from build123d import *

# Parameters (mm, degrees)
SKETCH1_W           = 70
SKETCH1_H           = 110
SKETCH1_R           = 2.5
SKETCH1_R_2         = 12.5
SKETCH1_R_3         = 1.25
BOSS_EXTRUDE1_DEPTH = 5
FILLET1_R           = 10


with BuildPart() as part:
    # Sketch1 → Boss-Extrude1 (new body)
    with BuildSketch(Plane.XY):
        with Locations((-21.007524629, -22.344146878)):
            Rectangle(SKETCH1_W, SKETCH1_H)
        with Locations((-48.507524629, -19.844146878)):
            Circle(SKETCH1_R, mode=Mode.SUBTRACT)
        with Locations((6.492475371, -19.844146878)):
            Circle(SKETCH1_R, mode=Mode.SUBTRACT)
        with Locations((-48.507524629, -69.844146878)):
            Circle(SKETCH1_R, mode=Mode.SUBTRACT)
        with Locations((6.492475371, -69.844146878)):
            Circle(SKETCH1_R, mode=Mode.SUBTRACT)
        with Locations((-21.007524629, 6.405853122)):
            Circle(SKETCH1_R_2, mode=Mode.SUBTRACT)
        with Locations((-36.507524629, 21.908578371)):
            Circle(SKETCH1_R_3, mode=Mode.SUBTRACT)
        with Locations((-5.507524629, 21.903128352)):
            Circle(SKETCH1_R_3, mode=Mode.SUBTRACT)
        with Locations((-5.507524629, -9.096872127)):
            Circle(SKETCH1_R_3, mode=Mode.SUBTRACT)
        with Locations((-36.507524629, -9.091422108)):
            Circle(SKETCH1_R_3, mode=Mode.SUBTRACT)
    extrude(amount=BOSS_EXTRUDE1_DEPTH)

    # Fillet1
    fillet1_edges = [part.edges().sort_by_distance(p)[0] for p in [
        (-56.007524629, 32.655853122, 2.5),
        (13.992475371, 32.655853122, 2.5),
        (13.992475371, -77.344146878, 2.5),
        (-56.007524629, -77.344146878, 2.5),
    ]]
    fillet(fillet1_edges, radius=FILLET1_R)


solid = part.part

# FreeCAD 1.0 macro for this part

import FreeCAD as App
import Part
import Sketcher
from FreeCAD import Vector


def edges_at(feature, points):
    """Names of the edges that pass closest to the given points."""
    edges = feature.Shape.Edges
    near = lambda p: min(range(len(edges)), key=lambda i: edges[i].distToShape(Part.Vertex(*p))[0])
    return sorted({f"Edge{near(p) + 1}" for p in points})

doc = App.newDocument("Part")
body = doc.addObject("PartDesign::Body", "Body")

# Sketch on XY plane
sketch1 = body.newObject("Sketcher::SketchObject", "Sketch")
sketch1.AttachmentSupport = (doc.getObject("XY_Plane"), [""])
sketch1.MapMode = "FlatFace"
sketch1.addGeometry(Part.LineSegment(Vector(-56.007525, 32.655853, 0), Vector(-56.007525, -77.344147, 0)), False)
sketch1.addGeometry(Part.LineSegment(Vector(-56.007525, -77.344147, 0), Vector(13.992475, -77.344147, 0)), False)
sketch1.addGeometry(Part.LineSegment(Vector(13.992475, -77.344147, 0), Vector(13.992475, 32.655853, 0)), False)
sketch1.addGeometry(Part.LineSegment(Vector(13.992475, 32.655853, 0), Vector(-56.007525, 32.655853, 0)), False)
sketch1.addGeometry(Part.Circle(Vector(-48.507525, -69.844147, 0), Vector(0, 0, 1), 2.5), False)
sketch1.addGeometry(Part.Circle(Vector(6.492475, -69.844147, 0), Vector(0, 0, 1), 2.5), False)
sketch1.addGeometry(Part.Circle(Vector(-48.507525, -19.844147, 0), Vector(0, 0, 1), 2.5), False)
sketch1.addGeometry(Part.Circle(Vector(-36.507525, -9.091422, 0), Vector(0, 0, 1), 1.25), False)
sketch1.addGeometry(Part.Circle(Vector(-36.507525, 21.908578, 0), Vector(0, 0, 1), 1.25), False)
sketch1.addGeometry(Part.Circle(Vector(6.492475, -19.844147, 0), Vector(0, 0, 1), 2.5), False)
sketch1.addGeometry(Part.Circle(Vector(-5.507525, -9.096872, 0), Vector(0, 0, 1), 1.25), False)
sketch1.addGeometry(Part.Circle(Vector(-21.007525, 6.405853, 0), Vector(0, 0, 1), 12.5), False)
sketch1.addGeometry(Part.Circle(Vector(-5.507525, 21.903128, 0), Vector(0, 0, 1), 1.25), False)
sketch1.addConstraint(Sketcher.Constraint("Coincident", 0, 2, 1, 1))
sketch1.addConstraint(Sketcher.Constraint("Coincident", 1, 2, 2, 1))
sketch1.addConstraint(Sketcher.Constraint("Coincident", 2, 2, 3, 1))
sketch1.addConstraint(Sketcher.Constraint("Coincident", 3, 2, 0, 1))
sketch1.addConstraint(Sketcher.Constraint("Vertical", 0))
sketch1.addConstraint(Sketcher.Constraint("Horizontal", 1))
sketch1.addConstraint(Sketcher.Constraint("Vertical", 2))
sketch1.addConstraint(Sketcher.Constraint("Horizontal", 3))
sketch1.addConstraint(Sketcher.Constraint("Equal", 4, 5))
sketch1.addConstraint(Sketcher.Constraint("Equal", 5, 6))
sketch1.addConstraint(Sketcher.Constraint("Equal", 7, 8))
sketch1.addConstraint(Sketcher.Constraint("Equal", 6, 9))
sketch1.addConstraint(Sketcher.Constraint("Equal", 8, 10))
sketch1.addConstraint(Sketcher.Constraint("Equal", 10, 12))
sketch1.addConstraint(Sketcher.Constraint("Horizontal", 4, 3, 5, 3))
sketch1.addConstraint(Sketcher.Constraint("Horizontal", 6, 3, 9, 3))
sketch1.addConstraint(Sketcher.Constraint("Vertical", 4, 3, 6, 3))
sketch1.addConstraint(Sketcher.Constraint("Vertical", 7, 3, 8, 3))
sketch1.addConstraint(Sketcher.Constraint("Vertical", 5, 3, 9, 3))
sketch1.addConstraint(Sketcher.Constraint("Vertical", 10, 3, 12, 3))
sketch1.addConstraint(Sketcher.Constraint("Diameter", 4, 5.0))
sketch1.addConstraint(Sketcher.Constraint("Diameter", 11, 25.0))
sketch1.addConstraint(Sketcher.Constraint("Diameter", 7, 2.5))
sketch1.addConstraint(Sketcher.Constraint("DistanceX", 1, 1, 1, 2, 70.0))
sketch1.addConstraint(Sketcher.Constraint("DistanceY", 0, 2, 0, 1, 110.0))
sketch1.addConstraint(Sketcher.Constraint("DistanceX", 4, 3, 5, 3, 55.0))
sketch1.addConstraint(Sketcher.Constraint("DistanceY", 4, 3, 6, 3, 50.0))
sketch1.addConstraint(Sketcher.Constraint("DistanceX", 6, 3, 7, 3, 12.0))
sketch1.addConstraint(Sketcher.Constraint("DistanceY", 7, 3, 8, 3, 31.0))
sketch1.addConstraint(Sketcher.Constraint("DistanceX", 10, 3, 9, 3, 12.0))
sketch1.addConstraint(Sketcher.Constraint("DistanceY", 10, 3, 12, 3, 31.0))
sketch1.addConstraint(Sketcher.Constraint("DistanceX", 11, 3, 2, 2, 35.0))
sketch1.addConstraint(Sketcher.Constraint("DistanceX", 7, 3, 11, 3, 15.5))
sketch1.addConstraint(Sketcher.Constraint("DistanceY", 0, 2, 4, 3, 7.5))
sketch1.addConstraint(Sketcher.Constraint("DistanceY", 6, 3, 11, 3, 26.25))
sketch1.addConstraint(Sketcher.Constraint("DistanceY", -1, 1, 8, 3, 21.908578))
sketch1.addConstraint(Sketcher.Constraint("DistanceY", -1, 1, 12, 3, 21.903128))
sketch1.addConstraint(Sketcher.Constraint("DistanceX", 4, 3, -1, 1, 48.507525))
sketch1.addConstraint(Sketcher.Constraint("DistanceY", 4, 3, -1, 1, 69.844147))
pad1 = body.newObject("PartDesign::Pad", "Pad")
pad1.Profile = sketch1
pad1.Length = 5
doc.recompute()

fillet = body.newObject("PartDesign::Fillet", "Fillet")
fillet.Base = (pad1, edges_at(pad1, [
    (-56.008, 32.656, 2.5),
    (13.992, 32.656, 2.5),
    (13.992, -77.344, 2.5),
    (-56.008, -77.344, 2.5),
]))
fillet.Radius = 10

doc.recompute()
